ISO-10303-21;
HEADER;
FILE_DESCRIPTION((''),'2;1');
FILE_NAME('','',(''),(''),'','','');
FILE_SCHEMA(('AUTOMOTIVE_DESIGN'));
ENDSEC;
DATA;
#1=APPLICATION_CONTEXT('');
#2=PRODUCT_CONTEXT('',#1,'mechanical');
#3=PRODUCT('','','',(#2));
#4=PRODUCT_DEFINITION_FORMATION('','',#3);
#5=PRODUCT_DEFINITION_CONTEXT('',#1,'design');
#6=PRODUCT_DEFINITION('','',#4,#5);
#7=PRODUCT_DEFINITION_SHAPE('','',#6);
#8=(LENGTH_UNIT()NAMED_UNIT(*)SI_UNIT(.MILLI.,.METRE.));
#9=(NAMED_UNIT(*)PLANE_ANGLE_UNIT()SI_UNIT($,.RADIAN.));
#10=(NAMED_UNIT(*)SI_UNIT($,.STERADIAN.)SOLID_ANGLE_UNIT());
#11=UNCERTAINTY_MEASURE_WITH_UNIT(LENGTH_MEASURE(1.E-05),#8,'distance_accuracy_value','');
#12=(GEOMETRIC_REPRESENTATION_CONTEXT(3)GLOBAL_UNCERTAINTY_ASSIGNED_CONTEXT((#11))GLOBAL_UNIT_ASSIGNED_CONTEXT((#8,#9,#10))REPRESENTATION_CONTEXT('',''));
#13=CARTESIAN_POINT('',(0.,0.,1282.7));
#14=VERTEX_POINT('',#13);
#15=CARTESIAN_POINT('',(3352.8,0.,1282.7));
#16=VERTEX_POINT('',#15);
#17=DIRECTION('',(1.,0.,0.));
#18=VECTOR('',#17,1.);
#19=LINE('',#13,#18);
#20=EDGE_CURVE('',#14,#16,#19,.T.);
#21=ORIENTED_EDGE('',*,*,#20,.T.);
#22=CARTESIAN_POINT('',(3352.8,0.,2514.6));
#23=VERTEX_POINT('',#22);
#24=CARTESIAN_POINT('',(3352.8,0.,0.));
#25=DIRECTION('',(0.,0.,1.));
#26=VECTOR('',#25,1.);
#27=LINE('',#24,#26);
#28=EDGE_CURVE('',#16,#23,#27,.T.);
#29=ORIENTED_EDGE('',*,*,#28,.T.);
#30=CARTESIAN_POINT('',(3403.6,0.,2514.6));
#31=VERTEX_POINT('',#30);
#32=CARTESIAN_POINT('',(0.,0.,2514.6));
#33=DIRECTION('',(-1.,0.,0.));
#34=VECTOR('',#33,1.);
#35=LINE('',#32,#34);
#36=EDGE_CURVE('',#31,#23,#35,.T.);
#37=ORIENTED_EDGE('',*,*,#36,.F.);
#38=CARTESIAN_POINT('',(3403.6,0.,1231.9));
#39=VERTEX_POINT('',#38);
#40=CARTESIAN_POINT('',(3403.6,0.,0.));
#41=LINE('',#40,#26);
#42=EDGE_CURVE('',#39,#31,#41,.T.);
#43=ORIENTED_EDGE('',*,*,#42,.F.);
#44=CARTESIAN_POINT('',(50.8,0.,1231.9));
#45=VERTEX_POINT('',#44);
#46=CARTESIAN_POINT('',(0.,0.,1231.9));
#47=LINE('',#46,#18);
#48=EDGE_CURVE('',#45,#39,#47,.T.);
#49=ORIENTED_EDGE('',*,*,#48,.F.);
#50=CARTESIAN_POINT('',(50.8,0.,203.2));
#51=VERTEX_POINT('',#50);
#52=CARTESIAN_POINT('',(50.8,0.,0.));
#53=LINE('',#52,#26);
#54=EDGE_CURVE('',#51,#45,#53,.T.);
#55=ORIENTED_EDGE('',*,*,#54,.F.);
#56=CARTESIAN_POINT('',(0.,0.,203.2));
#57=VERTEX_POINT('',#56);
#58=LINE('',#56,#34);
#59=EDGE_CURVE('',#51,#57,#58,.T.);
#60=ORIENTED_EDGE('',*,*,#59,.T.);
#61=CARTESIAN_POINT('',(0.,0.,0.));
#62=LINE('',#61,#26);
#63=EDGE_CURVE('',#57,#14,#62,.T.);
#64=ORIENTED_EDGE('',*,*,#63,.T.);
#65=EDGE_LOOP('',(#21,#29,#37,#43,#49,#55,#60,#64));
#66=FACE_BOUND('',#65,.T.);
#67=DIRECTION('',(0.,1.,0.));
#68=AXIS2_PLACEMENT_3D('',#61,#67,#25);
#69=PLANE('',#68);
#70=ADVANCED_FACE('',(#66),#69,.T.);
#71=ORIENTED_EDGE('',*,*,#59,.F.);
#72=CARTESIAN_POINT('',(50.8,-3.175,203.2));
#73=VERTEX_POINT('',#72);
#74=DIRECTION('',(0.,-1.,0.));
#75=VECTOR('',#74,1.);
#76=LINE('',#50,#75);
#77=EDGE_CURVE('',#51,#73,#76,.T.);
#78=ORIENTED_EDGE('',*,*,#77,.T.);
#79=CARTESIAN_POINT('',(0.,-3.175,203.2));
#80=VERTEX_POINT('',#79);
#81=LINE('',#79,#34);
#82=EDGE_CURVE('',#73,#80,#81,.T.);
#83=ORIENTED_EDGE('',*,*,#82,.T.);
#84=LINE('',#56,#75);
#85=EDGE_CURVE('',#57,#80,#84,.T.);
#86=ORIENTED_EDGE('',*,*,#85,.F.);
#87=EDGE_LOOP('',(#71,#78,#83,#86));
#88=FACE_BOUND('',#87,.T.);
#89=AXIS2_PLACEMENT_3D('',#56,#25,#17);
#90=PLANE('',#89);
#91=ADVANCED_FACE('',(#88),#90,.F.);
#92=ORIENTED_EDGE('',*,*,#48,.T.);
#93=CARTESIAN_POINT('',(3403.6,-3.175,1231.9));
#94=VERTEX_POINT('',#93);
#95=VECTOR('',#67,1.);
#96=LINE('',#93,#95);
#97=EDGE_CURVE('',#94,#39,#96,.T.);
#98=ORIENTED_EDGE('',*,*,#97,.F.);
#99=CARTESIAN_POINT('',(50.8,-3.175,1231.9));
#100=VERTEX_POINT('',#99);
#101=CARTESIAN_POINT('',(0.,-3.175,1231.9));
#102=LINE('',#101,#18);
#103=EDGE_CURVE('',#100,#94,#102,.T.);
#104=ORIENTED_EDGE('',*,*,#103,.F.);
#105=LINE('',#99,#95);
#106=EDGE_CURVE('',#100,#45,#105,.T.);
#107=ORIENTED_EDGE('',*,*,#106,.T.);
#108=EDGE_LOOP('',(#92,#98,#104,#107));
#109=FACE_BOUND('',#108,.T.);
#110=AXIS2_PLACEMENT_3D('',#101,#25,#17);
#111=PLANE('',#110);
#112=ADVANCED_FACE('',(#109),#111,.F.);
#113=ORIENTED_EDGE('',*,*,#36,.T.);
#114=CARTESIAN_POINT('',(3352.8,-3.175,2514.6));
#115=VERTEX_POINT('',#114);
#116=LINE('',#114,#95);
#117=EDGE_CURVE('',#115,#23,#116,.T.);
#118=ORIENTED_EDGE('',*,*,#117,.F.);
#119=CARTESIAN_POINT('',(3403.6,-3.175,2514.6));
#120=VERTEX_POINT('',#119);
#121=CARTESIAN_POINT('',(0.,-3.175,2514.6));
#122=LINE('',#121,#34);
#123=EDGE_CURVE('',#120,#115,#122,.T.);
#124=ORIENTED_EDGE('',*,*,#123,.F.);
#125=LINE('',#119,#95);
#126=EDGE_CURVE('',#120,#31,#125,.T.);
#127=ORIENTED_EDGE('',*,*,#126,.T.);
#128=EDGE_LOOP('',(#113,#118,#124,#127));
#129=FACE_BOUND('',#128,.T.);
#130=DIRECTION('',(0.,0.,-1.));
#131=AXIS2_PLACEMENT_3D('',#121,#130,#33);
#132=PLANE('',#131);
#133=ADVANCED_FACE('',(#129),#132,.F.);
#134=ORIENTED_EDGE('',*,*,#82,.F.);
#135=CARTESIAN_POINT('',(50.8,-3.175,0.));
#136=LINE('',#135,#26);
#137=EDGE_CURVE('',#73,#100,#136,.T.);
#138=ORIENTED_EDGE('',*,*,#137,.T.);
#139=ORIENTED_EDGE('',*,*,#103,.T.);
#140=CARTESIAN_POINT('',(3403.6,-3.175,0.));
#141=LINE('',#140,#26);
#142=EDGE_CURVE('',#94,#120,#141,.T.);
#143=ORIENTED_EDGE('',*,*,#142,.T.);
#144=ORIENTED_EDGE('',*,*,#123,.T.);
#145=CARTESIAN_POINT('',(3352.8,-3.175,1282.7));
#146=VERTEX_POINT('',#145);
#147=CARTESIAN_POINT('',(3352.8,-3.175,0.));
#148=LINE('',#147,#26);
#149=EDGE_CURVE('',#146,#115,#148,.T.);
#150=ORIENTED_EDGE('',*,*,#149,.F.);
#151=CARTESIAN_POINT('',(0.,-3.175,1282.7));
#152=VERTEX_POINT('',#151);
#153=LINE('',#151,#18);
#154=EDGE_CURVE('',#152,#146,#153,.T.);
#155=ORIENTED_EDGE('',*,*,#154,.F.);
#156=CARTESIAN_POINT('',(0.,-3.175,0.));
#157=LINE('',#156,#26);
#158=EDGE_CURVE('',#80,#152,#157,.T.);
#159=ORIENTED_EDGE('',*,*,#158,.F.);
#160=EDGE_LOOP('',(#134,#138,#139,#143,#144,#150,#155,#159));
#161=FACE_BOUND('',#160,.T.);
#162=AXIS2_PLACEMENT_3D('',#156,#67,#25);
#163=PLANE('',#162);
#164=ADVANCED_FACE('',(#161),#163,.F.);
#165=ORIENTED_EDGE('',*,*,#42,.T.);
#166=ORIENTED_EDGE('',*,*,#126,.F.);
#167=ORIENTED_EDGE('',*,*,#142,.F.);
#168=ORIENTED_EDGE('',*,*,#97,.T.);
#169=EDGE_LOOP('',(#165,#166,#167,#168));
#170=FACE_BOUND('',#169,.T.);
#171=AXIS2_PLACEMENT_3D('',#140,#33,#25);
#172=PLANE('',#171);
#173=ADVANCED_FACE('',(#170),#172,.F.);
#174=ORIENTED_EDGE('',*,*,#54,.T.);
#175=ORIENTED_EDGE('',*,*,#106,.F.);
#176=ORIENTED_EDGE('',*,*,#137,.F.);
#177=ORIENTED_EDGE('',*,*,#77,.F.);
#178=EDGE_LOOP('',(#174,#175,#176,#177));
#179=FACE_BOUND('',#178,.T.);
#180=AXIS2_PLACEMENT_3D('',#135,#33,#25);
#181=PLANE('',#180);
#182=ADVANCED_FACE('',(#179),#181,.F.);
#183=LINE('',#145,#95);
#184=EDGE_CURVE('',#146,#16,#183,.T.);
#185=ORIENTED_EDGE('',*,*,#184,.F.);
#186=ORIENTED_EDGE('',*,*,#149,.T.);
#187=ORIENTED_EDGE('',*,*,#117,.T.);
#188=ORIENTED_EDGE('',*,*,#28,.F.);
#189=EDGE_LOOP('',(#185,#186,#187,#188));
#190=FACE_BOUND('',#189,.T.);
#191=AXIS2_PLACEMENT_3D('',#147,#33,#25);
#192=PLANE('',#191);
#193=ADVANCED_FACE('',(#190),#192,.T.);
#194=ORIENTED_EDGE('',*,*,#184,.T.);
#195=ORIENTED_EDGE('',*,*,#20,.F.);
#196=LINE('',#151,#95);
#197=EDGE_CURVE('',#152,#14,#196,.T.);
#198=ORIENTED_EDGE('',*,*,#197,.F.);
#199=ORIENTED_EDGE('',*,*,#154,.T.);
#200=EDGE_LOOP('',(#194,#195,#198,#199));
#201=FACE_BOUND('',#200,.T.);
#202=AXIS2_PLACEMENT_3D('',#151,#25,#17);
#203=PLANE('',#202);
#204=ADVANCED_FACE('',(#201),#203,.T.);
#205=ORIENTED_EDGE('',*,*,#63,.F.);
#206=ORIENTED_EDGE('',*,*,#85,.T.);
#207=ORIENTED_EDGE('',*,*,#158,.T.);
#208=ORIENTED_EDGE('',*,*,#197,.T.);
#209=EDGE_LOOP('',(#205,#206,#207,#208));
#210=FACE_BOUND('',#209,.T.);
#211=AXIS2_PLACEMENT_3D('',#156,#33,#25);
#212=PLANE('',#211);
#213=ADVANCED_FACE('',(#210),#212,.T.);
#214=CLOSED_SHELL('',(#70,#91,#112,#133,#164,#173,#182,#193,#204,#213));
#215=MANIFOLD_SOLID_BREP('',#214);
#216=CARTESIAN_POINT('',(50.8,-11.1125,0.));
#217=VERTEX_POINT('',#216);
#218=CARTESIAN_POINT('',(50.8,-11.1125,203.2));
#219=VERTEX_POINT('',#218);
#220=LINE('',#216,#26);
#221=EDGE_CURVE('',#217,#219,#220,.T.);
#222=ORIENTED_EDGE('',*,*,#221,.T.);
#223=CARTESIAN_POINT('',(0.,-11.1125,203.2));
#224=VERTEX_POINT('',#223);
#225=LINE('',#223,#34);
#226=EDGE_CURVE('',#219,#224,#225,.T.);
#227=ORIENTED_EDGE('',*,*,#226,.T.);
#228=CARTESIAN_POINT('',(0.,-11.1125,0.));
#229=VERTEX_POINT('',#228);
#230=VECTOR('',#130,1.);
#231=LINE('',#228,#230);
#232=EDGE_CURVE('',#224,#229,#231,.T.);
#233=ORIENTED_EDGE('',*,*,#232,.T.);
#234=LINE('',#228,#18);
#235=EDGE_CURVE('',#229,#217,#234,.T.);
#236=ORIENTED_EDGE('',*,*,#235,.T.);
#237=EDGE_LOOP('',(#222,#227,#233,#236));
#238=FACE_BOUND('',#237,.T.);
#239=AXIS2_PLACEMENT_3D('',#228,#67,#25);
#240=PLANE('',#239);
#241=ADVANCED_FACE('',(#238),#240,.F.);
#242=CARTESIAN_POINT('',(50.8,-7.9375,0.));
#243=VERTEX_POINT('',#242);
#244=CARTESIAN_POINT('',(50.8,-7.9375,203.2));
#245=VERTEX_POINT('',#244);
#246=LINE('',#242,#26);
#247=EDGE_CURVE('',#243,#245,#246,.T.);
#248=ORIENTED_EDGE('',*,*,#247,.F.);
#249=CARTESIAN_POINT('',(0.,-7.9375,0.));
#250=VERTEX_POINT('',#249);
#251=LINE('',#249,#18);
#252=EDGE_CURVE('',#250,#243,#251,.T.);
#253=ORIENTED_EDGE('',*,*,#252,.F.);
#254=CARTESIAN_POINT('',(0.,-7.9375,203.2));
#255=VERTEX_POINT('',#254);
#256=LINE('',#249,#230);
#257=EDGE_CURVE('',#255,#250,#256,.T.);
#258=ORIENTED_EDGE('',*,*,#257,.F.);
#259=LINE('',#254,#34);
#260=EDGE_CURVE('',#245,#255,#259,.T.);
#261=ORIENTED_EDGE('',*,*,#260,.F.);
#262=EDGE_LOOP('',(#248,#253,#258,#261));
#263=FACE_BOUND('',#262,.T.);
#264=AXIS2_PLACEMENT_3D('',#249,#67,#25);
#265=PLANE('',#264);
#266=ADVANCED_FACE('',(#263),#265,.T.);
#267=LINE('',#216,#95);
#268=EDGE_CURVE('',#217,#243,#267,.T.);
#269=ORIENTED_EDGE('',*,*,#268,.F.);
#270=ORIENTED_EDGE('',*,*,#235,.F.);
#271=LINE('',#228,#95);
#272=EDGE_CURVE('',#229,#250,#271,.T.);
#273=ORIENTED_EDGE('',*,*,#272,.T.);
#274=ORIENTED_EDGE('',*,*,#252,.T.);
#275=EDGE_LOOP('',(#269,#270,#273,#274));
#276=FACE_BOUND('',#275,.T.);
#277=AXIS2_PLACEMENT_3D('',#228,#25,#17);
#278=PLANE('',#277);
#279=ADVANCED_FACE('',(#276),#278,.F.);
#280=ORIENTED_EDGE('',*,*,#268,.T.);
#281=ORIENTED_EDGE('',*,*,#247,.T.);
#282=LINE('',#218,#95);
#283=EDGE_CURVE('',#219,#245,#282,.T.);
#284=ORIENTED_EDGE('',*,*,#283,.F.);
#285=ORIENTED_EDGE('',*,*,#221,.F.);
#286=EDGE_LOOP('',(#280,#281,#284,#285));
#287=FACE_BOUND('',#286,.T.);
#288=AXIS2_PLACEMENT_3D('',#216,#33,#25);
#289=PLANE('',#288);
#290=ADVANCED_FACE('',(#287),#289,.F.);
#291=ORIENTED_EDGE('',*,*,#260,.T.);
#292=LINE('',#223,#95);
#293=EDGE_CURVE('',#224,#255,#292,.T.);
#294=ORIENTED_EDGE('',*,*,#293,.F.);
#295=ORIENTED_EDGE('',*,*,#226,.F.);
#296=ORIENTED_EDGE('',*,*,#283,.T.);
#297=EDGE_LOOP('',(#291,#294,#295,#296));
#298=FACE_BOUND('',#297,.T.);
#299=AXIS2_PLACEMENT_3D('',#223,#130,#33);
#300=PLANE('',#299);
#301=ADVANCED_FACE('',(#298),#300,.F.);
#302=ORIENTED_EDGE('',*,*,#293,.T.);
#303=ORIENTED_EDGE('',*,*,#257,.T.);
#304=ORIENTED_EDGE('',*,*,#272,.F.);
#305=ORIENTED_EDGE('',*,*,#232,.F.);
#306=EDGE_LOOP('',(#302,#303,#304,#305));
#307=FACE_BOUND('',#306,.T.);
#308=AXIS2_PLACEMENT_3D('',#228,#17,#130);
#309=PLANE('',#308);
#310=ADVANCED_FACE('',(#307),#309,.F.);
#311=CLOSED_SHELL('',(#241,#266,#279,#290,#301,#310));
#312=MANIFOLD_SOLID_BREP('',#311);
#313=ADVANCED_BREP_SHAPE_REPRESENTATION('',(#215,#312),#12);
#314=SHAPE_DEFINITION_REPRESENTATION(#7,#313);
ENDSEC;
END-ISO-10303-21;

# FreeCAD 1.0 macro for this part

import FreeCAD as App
import Part
import Sketcher
Q = App.Units.Quantity


def add_polygon(sketch, points):
    """Adds a closed chain of lines whose ends are joined by coincident constraints."""
    first, n = sketch.GeometryCount, len(points)
    for a, b in zip(points, points[1:] + points[:1]):
        sketch.addGeometry(Part.LineSegment(App.Vector(*a, 0), App.Vector(*b, 0)), False)
    for i in range(n):
        sketch.addConstraint(Sketcher.Constraint("Coincident", first + i, 2, first + (i + 1) % n, 1))

doc = App.newDocument("Part")
body = doc.addObject("PartDesign::Body", "Body")

sketch1 = body.newObject("Sketcher::SketchObject", "Sketch")
sketch1.AttachmentSupport = (doc.getObject("XZ_Plane"), [""])
sketch1.MapMode = "FlatFace"
add_polygon(sketch1, [(50.8, 0), (0, 0), (0, 1282.7), (3352.8, 1282.7), (3352.8, 2514.6), (3403.6, 2514.6), (3403.6, 1231.9), (50.8, 1231.9)])
sketch1.addConstraint(Sketcher.Constraint("Horizontal", 0))
sketch1.addConstraint(Sketcher.Constraint("Vertical", 1))
sketch1.addConstraint(Sketcher.Constraint("Horizontal", 2))
sketch1.addConstraint(Sketcher.Constraint("Vertical", 3))
sketch1.addConstraint(Sketcher.Constraint("Horizontal", 4))
sketch1.addConstraint(Sketcher.Constraint("Vertical", 5))
sketch1.addConstraint(Sketcher.Constraint("Horizontal", 6))
sketch1.addConstraint(Sketcher.Constraint("Vertical", 7))
sketch1.addConstraint(Sketcher.Constraint("Coincident", 0, 2, -1, 1))
sketch1.addConstraint(Sketcher.Constraint("Equal", 0, 4))
sketch1.addConstraint(Sketcher.Constraint("Equal", 1, 5))
sketch1.addConstraint(Sketcher.Constraint("DistanceX", 0, 2, 0, 1, Q("2 in")))
sketch1.addConstraint(Sketcher.Constraint("DistanceX", 2, 1, 2, 2, Q("132 in")))
sketch1.addConstraint(Sketcher.Constraint("DistanceY", 1, 1, 1, 2, Q("50.5 in")))
sketch1.addConstraint(Sketcher.Constraint("DistanceY", 3, 1, 3, 2, Q("48.5 in")))
pad1 = body.newObject("PartDesign::Pad", "Pad")
pad1.Profile = sketch1
pad1.Length = Q("0.125 in")

sketch2 = body.newObject("Sketcher::SketchObject", "Sketch001")
sketch2.AttachmentSupport = (doc.getObject("XZ_Plane"), [""])
sketch2.MapMode = "FlatFace"
sketch2.AttachmentOffset = App.Placement(App.Vector(0, 0, 0.125 * 25.4), App.Rotation())
add_polygon(sketch2, [(0, 203.2), (0, 0), (50.8, 0), (50.8, 203.2)])
sketch2.addConstraint(Sketcher.Constraint("Vertical", 0))
sketch2.addConstraint(Sketcher.Constraint("Horizontal", 1))
sketch2.addConstraint(Sketcher.Constraint("Vertical", 2))
sketch2.addConstraint(Sketcher.Constraint("Horizontal", 3))
sketch2.addConstraint(Sketcher.Constraint("Coincident", 0, 2, -1, 1))
sketch2.addConstraint(Sketcher.Constraint("DistanceX", 1, 1, 1, 2, Q("2 in")))
sketch2.addConstraint(Sketcher.Constraint("DistanceY", 0, 2, 0, 1, Q("8 in")))
pocket1 = body.newObject("PartDesign::Pocket", "Pocket")
pocket1.Profile = sketch2
pocket1.Type = "ThroughAll"
body2 = doc.addObject("PartDesign::Body", "Body001")

sketch3 = body2.newObject("Sketcher::SketchObject", "Sketch002")
sketch3.AttachmentSupport = (doc.getObject("XZ_Plane001"), [""])
sketch3.MapMode = "FlatFace"
sketch3.AttachmentOffset = App.Placement(App.Vector(0, 0, 0.3125 * 25.4), App.Rotation())
add_polygon(sketch3, [(50.8, 0), (50.8, 203.2), (0, 203.2), (0, 0)])
sketch3.addConstraint(Sketcher.Constraint("Vertical", 0))
sketch3.addConstraint(Sketcher.Constraint("Horizontal", 1))
sketch3.addConstraint(Sketcher.Constraint("Vertical", 2))
sketch3.addConstraint(Sketcher.Constraint("Horizontal", 3))
sketch3.addConstraint(Sketcher.Constraint("Coincident", 2, 2, -1, 1))
sketch3.addConstraint(Sketcher.Constraint("DistanceX", 1, 2, 1, 1, Q("2 in")))
sketch3.addConstraint(Sketcher.Constraint("DistanceY", 0, 1, 0, 2, Q("8 in")))
pad2 = body2.newObject("PartDesign::Pad", "Pad001")
pad2.Profile = sketch3
pad2.Length = Q("0.125 in")

doc.recompute()
